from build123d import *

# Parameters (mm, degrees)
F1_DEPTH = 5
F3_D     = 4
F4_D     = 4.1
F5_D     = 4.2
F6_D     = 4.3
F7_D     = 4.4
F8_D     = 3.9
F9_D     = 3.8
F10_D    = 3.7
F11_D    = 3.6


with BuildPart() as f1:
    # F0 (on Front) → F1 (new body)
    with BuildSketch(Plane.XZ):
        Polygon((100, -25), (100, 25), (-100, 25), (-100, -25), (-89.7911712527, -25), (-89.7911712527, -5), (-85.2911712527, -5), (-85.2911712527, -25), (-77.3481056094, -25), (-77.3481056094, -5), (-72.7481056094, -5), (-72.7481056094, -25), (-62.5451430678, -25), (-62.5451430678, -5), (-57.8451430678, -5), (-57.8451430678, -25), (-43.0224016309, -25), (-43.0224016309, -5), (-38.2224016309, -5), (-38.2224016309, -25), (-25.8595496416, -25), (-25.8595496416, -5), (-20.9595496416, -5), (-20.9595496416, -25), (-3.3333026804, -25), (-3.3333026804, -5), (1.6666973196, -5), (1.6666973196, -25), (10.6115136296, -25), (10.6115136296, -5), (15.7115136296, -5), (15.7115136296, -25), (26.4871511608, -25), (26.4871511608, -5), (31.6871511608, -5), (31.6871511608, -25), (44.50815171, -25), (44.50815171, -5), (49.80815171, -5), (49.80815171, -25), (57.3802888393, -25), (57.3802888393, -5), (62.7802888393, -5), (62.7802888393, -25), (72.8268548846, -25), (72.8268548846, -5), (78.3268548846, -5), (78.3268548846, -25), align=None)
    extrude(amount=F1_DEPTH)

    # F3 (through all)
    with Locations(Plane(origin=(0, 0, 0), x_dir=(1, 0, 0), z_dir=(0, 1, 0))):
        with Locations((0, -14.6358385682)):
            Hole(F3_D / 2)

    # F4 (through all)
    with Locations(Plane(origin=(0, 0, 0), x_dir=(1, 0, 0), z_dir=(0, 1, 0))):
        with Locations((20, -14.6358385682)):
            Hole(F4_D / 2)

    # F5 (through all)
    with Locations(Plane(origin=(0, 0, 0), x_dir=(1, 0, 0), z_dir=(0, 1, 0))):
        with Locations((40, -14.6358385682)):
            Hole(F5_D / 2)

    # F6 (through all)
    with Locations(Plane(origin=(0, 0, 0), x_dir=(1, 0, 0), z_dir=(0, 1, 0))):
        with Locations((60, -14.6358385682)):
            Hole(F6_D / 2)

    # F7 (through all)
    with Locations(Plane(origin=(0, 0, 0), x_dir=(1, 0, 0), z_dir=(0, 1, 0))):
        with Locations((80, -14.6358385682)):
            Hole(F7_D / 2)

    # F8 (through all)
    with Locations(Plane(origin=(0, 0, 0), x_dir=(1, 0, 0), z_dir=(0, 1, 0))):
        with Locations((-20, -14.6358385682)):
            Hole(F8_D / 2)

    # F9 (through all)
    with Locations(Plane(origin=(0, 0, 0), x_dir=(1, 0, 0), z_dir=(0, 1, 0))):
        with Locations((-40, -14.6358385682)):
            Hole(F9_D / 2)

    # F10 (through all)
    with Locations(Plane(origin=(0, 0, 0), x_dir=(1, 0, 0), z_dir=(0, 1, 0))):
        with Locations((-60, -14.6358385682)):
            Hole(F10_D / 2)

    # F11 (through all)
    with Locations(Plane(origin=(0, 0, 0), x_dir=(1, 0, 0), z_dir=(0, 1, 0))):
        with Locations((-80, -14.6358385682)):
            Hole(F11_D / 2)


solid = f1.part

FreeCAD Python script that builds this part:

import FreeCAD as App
import Part
import Sketcher
Q = App.Units.Quantity

doc = App.newDocument("Part")
params = doc.addObject("Spreadsheet::Sheet", "Params")
for row, (alias, value) in enumerate([
    ("sketch1_width", "200 mm"),
    ("sketch1_width2", "5 mm"),
    ("sketch1_height", "50 mm"),
    ("sketch1_height2", "20 mm"),
    ("sketch1_width3", "4.5 mm"),
    ("pad1_length", "5 mm"),
    ("sketch2_diameter", "4 mm"),
    ("hole_diameter", "4 mm"),
    ("sketch3_diameter", "4.1 mm"),
    ("hole2_diameter", "4.1 mm"),
    ("sketch4_diameter", "4.2 mm"),
    ("hole3_diameter", "4.2 mm"),
    ("sketch5_diameter", "4.3 mm"),
    ("hole4_diameter", "4.3 mm"),
    ("sketch6_diameter", "4.4 mm"),
    ("hole5_diameter", "4.4 mm"),
    ("sketch7_diameter", "3.9 mm"),
    ("hole6_diameter", "3.9 mm"),
    ("sketch8_diameter", "3.8 mm"),
    ("hole7_diameter", "3.8 mm"),
    ("sketch9_diameter", "3.7 mm"),
    ("hole8_diameter", "3.7 mm"),
    ("sketch10_diameter", "3.6 mm"),
    ("hole9_diameter", "3.6 mm"),
], start=1):
    params.set(f"A{row}", alias)
    params.set(f"B{row}", "=" + value)
    params.setAlias(f"B{row}", alias)

body = doc.addObject("PartDesign::Body", "Body")

# Sketch on XZ plane
sketch1 = doc.addObject("Sketcher::SketchObject", "Sketch")
body.addObject(sketch1)
sketch1.AttachmentSupport = (doc.XZ_Plane, [""])
sketch1.MapMode = "FlatFace"
sketch1.addGeometry(Part.LineSegment(App.Vector(100, -25, 0), App.Vector(100, 25, 0)), False)
sketch1.addGeometry(Part.LineSegment(App.Vector(100, 25, 0), App.Vector(-100, 25, 0)), False)
sketch1.addGeometry(Part.LineSegment(App.Vector(-100, 25, 0), App.Vector(-100, -25, 0)), False)
sketch1.addGeometry(Part.LineSegment(App.Vector(-100, -25, 0), App.Vector(-89.8, -25, 0)), False)
sketch1.addGeometry(Part.LineSegment(App.Vector(-89.8, -25, 0), App.Vector(-89.8, -5, 0)), False)
sketch1.addGeometry(Part.LineSegment(App.Vector(-89.8, -5, 0), App.Vector(-85.3, -5, 0)), False)
sketch1.addGeometry(Part.LineSegment(App.Vector(-85.3, -5, 0), App.Vector(-85.3, -25, 0)), False)
sketch1.addGeometry(Part.LineSegment(App.Vector(-85.3, -25, 0), App.Vector(-77.3, -25, 0)), False)
sketch1.addGeometry(Part.LineSegment(App.Vector(-77.3, -25, 0), App.Vector(-77.3, -5, 0)), False)
sketch1.addGeometry(Part.LineSegment(App.Vector(-77.3, -5, 0), App.Vector(-72.7, -5, 0)), False)
sketch1.addGeometry(Part.LineSegment(App.Vector(-72.7, -5, 0), App.Vector(-72.7, -25, 0)), False)
sketch1.addGeometry(Part.LineSegment(App.Vector(-72.7, -25, 0), App.Vector(-62.5, -25, 0)), False)
sketch1.addGeometry(Part.LineSegment(App.Vector(-62.5, -25, 0), App.Vector(-62.5, -5, 0)), False)
sketch1.addGeometry(Part.LineSegment(App.Vector(-62.5, -5, 0), App.Vector(-57.8, -5, 0)), False)
sketch1.addGeometry(Part.LineSegment(App.Vector(-57.8, -5, 0), App.Vector(-57.8, -25, 0)), False)
sketch1.addGeometry(Part.LineSegment(App.Vector(-57.8, -25, 0), App.Vector(-43, -25, 0)), False)
sketch1.addGeometry(Part.LineSegment(App.Vector(-43, -25, 0), App.Vector(-43, -5, 0)), False)
sketch1.addGeometry(Part.LineSegment(App.Vector(-43, -5, 0), App.Vector(-38.2, -5, 0)), False)
sketch1.addGeometry(Part.LineSegment(App.Vector(-38.2, -5, 0), App.Vector(-38.2, -25, 0)), False)
sketch1.addGeometry(Part.LineSegment(App.Vector(-38.2, -25, 0), App.Vector(-25.9, -25, 0)), False)
sketch1.addGeometry(Part.LineSegment(App.Vector(-25.9, -25, 0), App.Vector(-25.9, -5, 0)), False)
sketch1.addGeometry(Part.LineSegment(App.Vector(-25.9, -5, 0), App.Vector(-21, -5, 0)), False)
sketch1.addGeometry(Part.LineSegment(App.Vector(-21, -5, 0), App.Vector(-21, -25, 0)), False)
sketch1.addGeometry(Part.LineSegment(App.Vector(-21, -25, 0), App.Vector(-3.3, -25, 0)), False)
sketch1.addGeometry(Part.LineSegment(App.Vector(-3.3, -25, 0), App.Vector(-3.3, -5, 0)), False)
sketch1.addGeometry(Part.LineSegment(App.Vector(-3.3, -5, 0), App.Vector(1.7, -5, 0)), False)
sketch1.addGeometry(Part.LineSegment(App.Vector(1.7, -5, 0), App.Vector(1.7, -25, 0)), False)
sketch1.addGeometry(Part.LineSegment(App.Vector(1.7, -25, 0), App.Vector(10.6, -25, 0)), False)
sketch1.addGeometry(Part.LineSegment(App.Vector(10.6, -25, 0), App.Vector(10.6, -5, 0)), False)
sketch1.addGeometry(Part.LineSegment(App.Vector(10.6, -5, 0), App.Vector(15.7, -5, 0)), False)
sketch1.addGeometry(Part.LineSegment(App.Vector(15.7, -5, 0), App.Vector(15.7, -25, 0)), False)
sketch1.addGeometry(Part.LineSegment(App.Vector(15.7, -25, 0), App.Vector(26.5, -25, 0)), False)
sketch1.addGeometry(Part.LineSegment(App.Vector(26.5, -25, 0), App.Vector(26.5, -5, 0)), False)
sketch1.addGeometry(Part.LineSegment(App.Vector(26.5, -5, 0), App.Vector(31.7, -5, 0)), False)
sketch1.addGeometry(Part.LineSegment(App.Vector(31.7, -5, 0), App.Vector(31.7, -25, 0)), False)
sketch1.addGeometry(Part.LineSegment(App.Vector(31.7, -25, 0), App.Vector(44.5, -25, 0)), False)
sketch1.addGeometry(Part.LineSegment(App.Vector(44.5, -25, 0), App.Vector(44.5, -5, 0)), False)
sketch1.addGeometry(Part.LineSegment(App.Vector(44.5, -5, 0), App.Vector(49.8, -5, 0)), False)
sketch1.addGeometry(Part.LineSegment(App.Vector(49.8, -5, 0), App.Vector(49.8, -25, 0)), False)
sketch1.addGeometry(Part.LineSegment(App.Vector(49.8, -25, 0), App.Vector(57.4, -25, 0)), False)
sketch1.addGeometry(Part.LineSegment(App.Vector(57.4, -25, 0), App.Vector(57.4, -5, 0)), False)
sketch1.addGeometry(Part.LineSegment(App.Vector(57.4, -5, 0), App.Vector(62.8, -5, 0)), False)
sketch1.addGeometry(Part.LineSegment(App.Vector(62.8, -5, 0), App.Vector(62.8, -25, 0)), False)
sketch1.addGeometry(Part.LineSegment(App.Vector(62.8, -25, 0), App.Vector(72.8, -25, 0)), False)
sketch1.addGeometry(Part.LineSegment(App.Vector(72.8, -25, 0), App.Vector(72.8, -5, 0)), False)
sketch1.addGeometry(Part.LineSegment(App.Vector(72.8, -5, 0), App.Vector(78.3, -5, 0)), False)
sketch1.addGeometry(Part.LineSegment(App.Vector(78.3, -5, 0), App.Vector(78.3, -25, 0)), False)
sketch1.addGeometry(Part.LineSegment(App.Vector(78.3, -25, 0), App.Vector(100, -25, 0)), False)
sketch1.addConstraint(Sketcher.Constraint("Coincident", 0, 2, 1, 1))
sketch1.addConstraint(Sketcher.Constraint("Coincident", 1, 2, 2, 1))
sketch1.addConstraint(Sketcher.Constraint("Coincident", 2, 2, 3, 1))
sketch1.addConstraint(Sketcher.Constraint("Coincident", 3, 2, 4, 1))
sketch1.addConstraint(Sketcher.Constraint("Coincident", 4, 2, 5, 1))
sketch1.addConstraint(Sketcher.Constraint("Coincident", 5, 2, 6, 1))
sketch1.addConstraint(Sketcher.Constraint("Coincident", 6, 2, 7, 1))
sketch1.addConstraint(Sketcher.Constraint("Coincident", 7, 2, 8, 1))
sketch1.addConstraint(Sketcher.Constraint("Coincident", 8, 2, 9, 1))
sketch1.addConstraint(Sketcher.Constraint("Coincident", 9, 2, 10, 1))
sketch1.addConstraint(Sketcher.Constraint("Coincident", 10, 2, 11, 1))
sketch1.addConstraint(Sketcher.Constraint("Coincident", 11, 2, 12, 1))
sketch1.addConstraint(Sketcher.Constraint("Coincident", 12, 2, 13, 1))
sketch1.addConstraint(Sketcher.Constraint("Coincident", 13, 2, 14, 1))
sketch1.addConstraint(Sketcher.Constraint("Coincident", 14, 2, 15, 1))
sketch1.addConstraint(Sketcher.Constraint("Coincident", 15, 2, 16, 1))
sketch1.addConstraint(Sketcher.Constraint("Coincident", 16, 2, 17, 1))
sketch1.addConstraint(Sketcher.Constraint("Coincident", 17, 2, 18, 1))
sketch1.addConstraint(Sketcher.Constraint("Coincident", 18, 2, 19, 1))
sketch1.addConstraint(Sketcher.Constraint("Coincident", 19, 2, 20, 1))
sketch1.addConstraint(Sketcher.Constraint("Coincident", 20, 2, 21, 1))
sketch1.addConstraint(Sketcher.Constraint("Coincident", 21, 2, 22, 1))
sketch1.addConstraint(Sketcher.Constraint("Coincident", 22, 2, 23, 1))
sketch1.addConstraint(Sketcher.Constraint("Coincident", 23, 2, 24, 1))
sketch1.addConstraint(Sketcher.Constraint("Coincident", 24, 2, 25, 1))
sketch1.addConstraint(Sketcher.Constraint("Coincident", 25, 2, 26, 1))
sketch1.addConstraint(Sketcher.Constraint("Coincident", 26, 2, 27, 1))
sketch1.addConstraint(Sketcher.Constraint("Coincident", 27, 2, 28, 1))
sketch1.addConstraint(Sketcher.Constraint("Coincident", 28, 2, 29, 1))
sketch1.addConstraint(Sketcher.Constraint("Coincident", 29, 2, 30, 1))
sketch1.addConstraint(Sketcher.Constraint("Coincident", 30, 2, 31, 1))
sketch1.addConstraint(Sketcher.Constraint("Coincident", 31, 2, 32, 1))
sketch1.addConstraint(Sketcher.Constraint("Coincident", 32, 2, 33, 1))
sketch1.addConstraint(Sketcher.Constraint("Coincident", 33, 2, 34, 1))
sketch1.addConstraint(Sketcher.Constraint("Coincident", 34, 2, 35, 1))
sketch1.addConstraint(Sketcher.Constraint("Coincident", 35, 2, 36, 1))
sketch1.addConstraint(Sketcher.Constraint("Coincident", 36, 2, 37, 1))
sketch1.addConstraint(Sketcher.Constraint("Coincident", 37, 2, 38, 1))
sketch1.addConstraint(Sketcher.Constraint("Coincident", 38, 2, 39, 1))
sketch1.addConstraint(Sketcher.Constraint("Coincident", 39, 2, 40, 1))
sketch1.addConstraint(Sketcher.Constraint("Coincident", 40, 2, 41, 1))
sketch1.addConstraint(Sketcher.Constraint("Coincident", 41, 2, 42, 1))
sketch1.addConstraint(Sketcher.Constraint("Coincident", 42, 2, 43, 1))
sketch1.addConstraint(Sketcher.Constraint("Coincident", 43, 2, 44, 1))
sketch1.addConstraint(Sketcher.Constraint("Coincident", 44, 2, 45, 1))
sketch1.addConstraint(Sketcher.Constraint("Coincident", 45, 2, 46, 1))
sketch1.addConstraint(Sketcher.Constraint("Coincident", 46, 2, 47, 1))
sketch1.addConstraint(Sketcher.Constraint("Coincident", 47, 2, 0, 1))
sketch1.addConstraint(Sketcher.Constraint("Vertical", 0))
sketch1.addConstraint(Sketcher.Constraint("Horizontal", 1))
sketch1.addConstraint(Sketcher.Constraint("Vertical", 2))
sketch1.addConstraint(Sketcher.Constraint("Horizontal", 3))
sketch1.addConstraint(Sketcher.Constraint("Vertical", 4))
sketch1.addConstraint(Sketcher.Constraint("Horizontal", 5))
sketch1.addConstraint(Sketcher.Constraint("Vertical", 6))
sketch1.addConstraint(Sketcher.Constraint("Horizontal", 7))
sketch1.addConstraint(Sketcher.Constraint("Vertical", 8))
sketch1.addConstraint(Sketcher.Constraint("Horizontal", 9))
sketch1.addConstraint(Sketcher.Constraint("Vertical", 10))
sketch1.addConstraint(Sketcher.Constraint("Horizontal", 11))
sketch1.addConstraint(Sketcher.Constraint("Vertical", 12))
sketch1.addConstraint(Sketcher.Constraint("Horizontal", 13))
sketch1.addConstraint(Sketcher.Constraint("Vertical", 14))
sketch1.addConstraint(Sketcher.Constraint("Horizontal", 15))
sketch1.addConstraint(Sketcher.Constraint("Vertical", 16))
sketch1.addConstraint(Sketcher.Constraint("Horizontal", 17))
sketch1.addConstraint(Sketcher.Constraint("Vertical", 18))
sketch1.addConstraint(Sketcher.Constraint("Horizontal", 19))
sketch1.addConstraint(Sketcher.Constraint("Vertical", 20))
sketch1.addConstraint(Sketcher.Constraint("Horizontal", 21))
sketch1.addConstraint(Sketcher.Constraint("Vertical", 22))
sketch1.addConstraint(Sketcher.Constraint("Horizontal", 23))
sketch1.addConstraint(Sketcher.Constraint("Vertical", 24))
sketch1.addConstraint(Sketcher.Constraint("Horizontal", 25))
sketch1.addConstraint(Sketcher.Constraint("Vertical", 26))
sketch1.addConstraint(Sketcher.Constraint("Horizontal", 27))
sketch1.addConstraint(Sketcher.Constraint("Vertical", 28))
sketch1.addConstraint(Sketcher.Constraint("Horizontal", 29))
sketch1.addConstraint(Sketcher.Constraint("Vertical", 30))
sketch1.addConstraint(Sketcher.Constraint("Horizontal", 31))
sketch1.addConstraint(Sketcher.Constraint("Vertical", 32))
sketch1.addConstraint(Sketcher.Constraint("Horizontal", 33))
sketch1.addConstraint(Sketcher.Constraint("Vertical", 34))
sketch1.addConstraint(Sketcher.Constraint("Horizontal", 35))
sketch1.addConstraint(Sketcher.Constraint("Vertical", 36))
sketch1.addConstraint(Sketcher.Constraint("Horizontal", 37))
sketch1.addConstraint(Sketcher.Constraint("Vertical", 38))
sketch1.addConstraint(Sketcher.Constraint("Horizontal", 39))
sketch1.addConstraint(Sketcher.Constraint("Vertical", 40))
sketch1.addConstraint(Sketcher.Constraint("Horizontal", 41))
sketch1.addConstraint(Sketcher.Constraint("Vertical", 42))
sketch1.addConstraint(Sketcher.Constraint("Horizontal", 43))
sketch1.addConstraint(Sketcher.Constraint("Vertical", 44))
sketch1.addConstraint(Sketcher.Constraint("Horizontal", 45))
sketch1.addConstraint(Sketcher.Constraint("Vertical", 46))
sketch1.addConstraint(Sketcher.Constraint("Horizontal", 47))
sketch1.addConstraint(Sketcher.Constraint("Symmetric", 0, 2, 2, 2, -1, 1))
sketch1.addConstraint(Sketcher.Constraint("Horizontal", 3, 2, 6, 2))
sketch1.addConstraint(Sketcher.Constraint("Horizontal", 5, 2, 8, 2))
sketch1.addConstraint(Sketcher.Constraint("Horizontal", 7, 2, 10, 2))
sketch1.addConstraint(Sketcher.Constraint("Horizontal", 9, 2, 12, 2))
sketch1.addConstraint(Sketcher.Constraint("Horizontal", 11, 2, 14, 2))
sketch1.addConstraint(Sketcher.Constraint("Horizontal", 13, 2, 16, 2))
sketch1.addConstraint(Sketcher.Constraint("Horizontal", 15, 2, 18, 2))
sketch1.addConstraint(Sketcher.Constraint("Horizontal", 17, 2, 20, 2))
sketch1.addConstraint(Sketcher.Constraint("Horizontal", 19, 2, 22, 2))
sketch1.addConstraint(Sketcher.Constraint("Horizontal", 21, 2, 24, 2))
sketch1.addConstraint(Sketcher.Constraint("Horizontal", 23, 2, 26, 2))
sketch1.addConstraint(Sketcher.Constraint("Horizontal", 25, 2, 28, 2))
sketch1.addConstraint(Sketcher.Constraint("Horizontal", 27, 2, 30, 2))
sketch1.addConstraint(Sketcher.Constraint("Horizontal", 29, 2, 32, 2))
sketch1.addConstraint(Sketcher.Constraint("Horizontal", 31, 2, 34, 2))
sketch1.addConstraint(Sketcher.Constraint("Horizontal", 33, 2, 36, 2))
sketch1.addConstraint(Sketcher.Constraint("Horizontal", 35, 2, 38, 2))
sketch1.addConstraint(Sketcher.Constraint("Horizontal", 37, 2, 40, 2))
sketch1.addConstraint(Sketcher.Constraint("Horizontal", 39, 2, 42, 2))
sketch1.addConstraint(Sketcher.Constraint("Horizontal", 41, 2, 44, 2))
sketch1.addConstraint(Sketcher.Constraint("Horizontal", 43, 2, 46, 2))
sketch1.addConstraint(Sketcher.Constraint("DistanceX", 1, 2, 1, 1, Q("200 mm")))
sketch1.addConstraint(Sketcher.Constraint("DistanceX", 25, 1, 25, 2, Q("5 mm")))
sketch1.addConstraint(Sketcher.Constraint("DistanceY", 0, 1, 0, 2, Q("50 mm")))
sketch1.addConstraint(Sketcher.Constraint("DistanceY", 4, 1, 4, 2, Q("20 mm")))
sketch1.addConstraint(Sketcher.Constraint("DistanceX", 5, 1, 5, 2, Q("4.5 mm")))
sketch1.addConstraint(Sketcher.Constraint("DistanceX", 9, 1, 9, 2, Q("4.6 mm")))
sketch1.addConstraint(Sketcher.Constraint("DistanceX", 13, 1, 13, 2, Q("4.7 mm")))
sketch1.addConstraint(Sketcher.Constraint("DistanceX", 17, 1, 17, 2, Q("4.8 mm")))
sketch1.addConstraint(Sketcher.Constraint("DistanceX", 21, 1, 21, 2, Q("4.9 mm")))
sketch1.addConstraint(Sketcher.Constraint("DistanceX", 29, 1, 29, 2, Q("5.1 mm")))
sketch1.addConstraint(Sketcher.Constraint("DistanceX", 33, 1, 33, 2, Q("5.2 mm")))
sketch1.addConstraint(Sketcher.Constraint("DistanceX", 37, 1, 37, 2, Q("5.3 mm")))
sketch1.addConstraint(Sketcher.Constraint("DistanceX", 41, 1, 41, 2, Q("5.4 mm")))
sketch1.addConstraint(Sketcher.Constraint("DistanceX", 45, 1, 45, 2, Q("5.5 mm")))
sketch1.addConstraint(Sketcher.Constraint("DistanceX", 35, 1, 35, 2, Q("12.821001 mm")))
sketch1.addConstraint(Sketcher.Constraint("DistanceX", 3, 1, 3, 2, Q("10.208829 mm")))
sketch1.addConstraint(Sketcher.Constraint("DistanceX", 15, 1, 15, 2, Q("14.822741 mm")))
sketch1.addConstraint(Sketcher.Constraint("DistanceX", 19, 1, 19, 2, Q("12.362852 mm")))
sketch1.addConstraint(Sketcher.Constraint("DistanceX", 15, 2, -1, 1, Q("43.022402 mm")))
sketch1.addConstraint(Sketcher.Constraint("DistanceX", 18, 2, 23, 2, Q("34.889099 mm")))
sketch1.addConstraint(Sketcher.Constraint("DistanceX", 7, 1, 7, 2, Q("7.943066 mm")))
sketch1.addConstraint(Sketcher.Constraint("DistanceX", 27, 1, 27, 2, Q("8.944816 mm")))
sketch1.addConstraint(Sketcher.Constraint("DistanceX", 31, 1, 31, 2, Q("10.775638 mm")))
sketch1.addConstraint(Sketcher.Constraint("DistanceX", 39, 1, 39, 2, Q("7.572137 mm")))
sketch1.addConstraint(Sketcher.Constraint("DistanceX", 43, 1, 43, 2, Q("10.046566 mm")))
sketch1.setExpression("Constraints[118]", "Params.sketch1_width")
sketch1.setExpression("Constraints[119]", "Params.sketch1_width2")
sketch1.setExpression("Constraints[120]", "Params.sketch1_height")
sketch1.setExpression("Constraints[121]", "Params.sketch1_height2")
sketch1.setExpression("Constraints[122]", "Params.sketch1_width3")
pad1 = doc.addObject("PartDesign::Pad", "Pad")
body.addObject(pad1)
pad1.Profile = sketch1
pad1.setExpression("Length", "Params.pad1_length")

# Sketch on XZ plane
sketch2 = doc.addObject("Sketcher::SketchObject", "Sketch001")
body.addObject(sketch2)
sketch2.AttachmentSupport = (doc.XZ_Plane, [""])
sketch2.MapMode = "FlatFace"
sketch2.addGeometry(Part.Circle(App.Vector(0, 14.6, 0), App.Vector(0, 0, 1), 2), False)
sketch2.addConstraint(Sketcher.Constraint("PointOnObject", 0, 3, -2))
sketch2.addConstraint(Sketcher.Constraint("Diameter", 0, Q("4 mm")))
sketch2.addConstraint(Sketcher.Constraint("DistanceY", -1, 1, 0, 3, Q("14.635839 mm")))
sketch2.setExpression("Constraints[1]", "Params.sketch2_diameter")
doc.recompute()
hole = doc.addObject("PartDesign::Hole", "Hole")
body.addObject(hole)
hole.Profile = sketch2
hole.ThreadType = "None"
hole.setExpression("Diameter", "Params.hole_diameter")
hole.DepthType = "ThroughAll"
hole.Reversed = True

# Sketch on XZ plane
sketch3 = doc.addObject("Sketcher::SketchObject", "Sketch002")
body.addObject(sketch3)
sketch3.AttachmentSupport = (doc.XZ_Plane, [""])
sketch3.MapMode = "FlatFace"
sketch3.addGeometry(Part.Circle(App.Vector(20, 14.6, 0), App.Vector(0, 0, 1), 2), False)
sketch3.addConstraint(Sketcher.Constraint("Diameter", 0, Q("4.1 mm")))
sketch3.addConstraint(Sketcher.Constraint("DistanceX", -1, 1, 0, 3, Q("20 mm")))
sketch3.addConstraint(Sketcher.Constraint("DistanceY", -1, 1, 0, 3, Q("14.635839 mm")))
sketch3.setExpression("Constraints[0]", "Params.sketch3_diameter")
doc.recompute()
hole2 = doc.addObject("PartDesign::Hole", "Hole001")
body.addObject(hole2)
hole2.Profile = sketch3
hole2.ThreadType = "None"
hole2.setExpression("Diameter", "Params.hole2_diameter")
hole2.DepthType = "ThroughAll"
hole2.Reversed = True

# Sketch on XZ plane
sketch4 = doc.addObject("Sketcher::SketchObject", "Sketch003")
body.addObject(sketch4)
sketch4.AttachmentSupport = (doc.XZ_Plane, [""])
sketch4.MapMode = "FlatFace"
sketch4.addGeometry(Part.Circle(App.Vector(40, 14.6, 0), App.Vector(0, 0, 1), 2.1), False)
sketch4.addConstraint(Sketcher.Constraint("Diameter", 0, Q("4.2 mm")))
sketch4.addConstraint(Sketcher.Constraint("DistanceX", -1, 1, 0, 3, Q("40 mm")))
sketch4.addConstraint(Sketcher.Constraint("DistanceY", -1, 1, 0, 3, Q("14.635839 mm")))
sketch4.setExpression("Constraints[0]", "Params.sketch4_diameter")
doc.recompute()
hole3 = doc.addObject("PartDesign::Hole", "Hole002")
body.addObject(hole3)
hole3.Profile = sketch4
hole3.ThreadType = "None"
hole3.setExpression("Diameter", "Params.hole3_diameter")
hole3.DepthType = "ThroughAll"
hole3.Reversed = True

# Sketch on XZ plane
sketch5 = doc.addObject("Sketcher::SketchObject", "Sketch004")
body.addObject(sketch5)
sketch5.AttachmentSupport = (doc.XZ_Plane, [""])
sketch5.MapMode = "FlatFace"
sketch5.addGeometry(Part.Circle(App.Vector(60, 14.6, 0), App.Vector(0, 0, 1), 2.1), False)
sketch5.addConstraint(Sketcher.Constraint("Diameter", 0, Q("4.3 mm")))
sketch5.addConstraint(Sketcher.Constraint("DistanceX", -1, 1, 0, 3, Q("60 mm")))
sketch5.addConstraint(Sketcher.Constraint("DistanceY", -1, 1, 0, 3, Q("14.635839 mm")))
sketch5.setExpression("Constraints[0]", "Params.sketch5_diameter")
doc.recompute()
hole4 = doc.addObject("PartDesign::Hole", "Hole003")
body.addObject(hole4)
hole4.Profile = sketch5
hole4.ThreadType = "None"
hole4.setExpression("Diameter", "Params.hole4_diameter")
hole4.DepthType = "ThroughAll"
hole4.Reversed = True

# Sketch on XZ plane
sketch6 = doc.addObject("Sketcher::SketchObject", "Sketch005")
body.addObject(sketch6)
sketch6.AttachmentSupport = (doc.XZ_Plane, [""])
sketch6.MapMode = "FlatFace"
sketch6.addGeometry(Part.Circle(App.Vector(80, 14.6, 0), App.Vector(0, 0, 1), 2.2), False)
sketch6.addConstraint(Sketcher.Constraint("Diameter", 0, Q("4.4 mm")))
sketch6.addConstraint(Sketcher.Constraint("DistanceX", -1, 1, 0, 3, Q("80 mm")))
sketch6.addConstraint(Sketcher.Constraint("DistanceY", -1, 1, 0, 3, Q("14.635839 mm")))
sketch6.setExpression("Constraints[0]", "Params.sketch6_diameter")
doc.recompute()
hole5 = doc.addObject("PartDesign::Hole", "Hole004")
body.addObject(hole5)
hole5.Profile = sketch6
hole5.ThreadType = "None"
hole5.setExpression("Diameter", "Params.hole5_diameter")
hole5.DepthType = "ThroughAll"
hole5.Reversed = True

# Sketch on XZ plane
sketch7 = doc.addObject("Sketcher::SketchObject", "Sketch006")
body.addObject(sketch7)
sketch7.AttachmentSupport = (doc.XZ_Plane, [""])
sketch7.MapMode = "FlatFace"
sketch7.addGeometry(Part.Circle(App.Vector(-20, 14.6, 0), App.Vector(0, 0, 1), 1.9), False)
sketch7.addConstraint(Sketcher.Constraint("Diameter", 0, Q("3.9 mm")))
sketch7.addConstraint(Sketcher.Constraint("DistanceX", 0, 3, -1, 1, Q("20 mm")))
sketch7.addConstraint(Sketcher.Constraint("DistanceY", -1, 1, 0, 3, Q("14.635839 mm")))
sketch7.setExpression("Constraints[0]", "Params.sketch7_diameter")
doc.recompute()
hole6 = doc.addObject("PartDesign::Hole", "Hole005")
body.addObject(hole6)
hole6.Profile = sketch7
hole6.ThreadType = "None"
hole6.setExpression("Diameter", "Params.hole6_diameter")
hole6.DepthType = "ThroughAll"
hole6.Reversed = True

# Sketch on XZ plane
sketch8 = doc.addObject("Sketcher::SketchObject", "Sketch007")
body.addObject(sketch8)
sketch8.AttachmentSupport = (doc.XZ_Plane, [""])
sketch8.MapMode = "FlatFace"
sketch8.addGeometry(Part.Circle(App.Vector(-40, 14.6, 0), App.Vector(0, 0, 1), 1.9), False)
sketch8.addConstraint(Sketcher.Constraint("Diameter", 0, Q("3.8 mm")))
sketch8.addConstraint(Sketcher.Constraint("DistanceX", 0, 3, -1, 1, Q("40 mm")))
sketch8.addConstraint(Sketcher.Constraint("DistanceY", -1, 1, 0, 3, Q("14.635839 mm")))
sketch8.setExpression("Constraints[0]", "Params.sketch8_diameter")
doc.recompute()
hole7 = doc.addObject("PartDesign::Hole", "Hole006")
body.addObject(hole7)
hole7.Profile = sketch8
hole7.ThreadType = "None"
hole7.setExpression("Diameter", "Params.hole7_diameter")
hole7.DepthType = "ThroughAll"
hole7.Reversed = True

# Sketch on XZ plane
sketch9 = doc.addObject("Sketcher::SketchObject", "Sketch008")
body.addObject(sketch9)
sketch9.AttachmentSupport = (doc.XZ_Plane, [""])
sketch9.MapMode = "FlatFace"
sketch9.addGeometry(Part.Circle(App.Vector(-60, 14.6, 0), App.Vector(0, 0, 1), 1.9), False)
sketch9.addConstraint(Sketcher.Constraint("Diameter", 0, Q("3.7 mm")))
sketch9.addConstraint(Sketcher.Constraint("DistanceX", 0, 3, -1, 1, Q("60 mm")))
sketch9.addConstraint(Sketcher.Constraint("DistanceY", -1, 1, 0, 3, Q("14.635839 mm")))
sketch9.setExpression("Constraints[0]", "Params.sketch9_diameter")
doc.recompute()
hole8 = doc.addObject("PartDesign::Hole", "Hole007")
body.addObject(hole8)
hole8.Profile = sketch9
hole8.ThreadType = "None"
hole8.setExpression("Diameter", "Params.hole8_diameter")
hole8.DepthType = "ThroughAll"
hole8.Reversed = True

# Sketch on XZ plane
sketch10 = doc.addObject("Sketcher::SketchObject", "Sketch009")
body.addObject(sketch10)
sketch10.AttachmentSupport = (doc.XZ_Plane, [""])
sketch10.MapMode = "FlatFace"
sketch10.addGeometry(Part.Circle(App.Vector(-80, 14.6, 0), App.Vector(0, 0, 1), 1.8), False)
sketch10.addConstraint(Sketcher.Constraint("Diameter", 0, Q("3.6 mm")))
sketch10.addConstraint(Sketcher.Constraint("DistanceX", 0, 3, -1, 1, Q("80 mm")))
sketch10.addConstraint(Sketcher.Constraint("DistanceY", -1, 1, 0, 3, Q("14.635839 mm")))
sketch10.setExpression("Constraints[0]", "Params.sketch10_diameter")
doc.recompute()
hole9 = doc.addObject("PartDesign::Hole", "Hole008")
body.addObject(hole9)
hole9.Profile = sketch10
hole9.ThreadType = "None"
hole9.setExpression("Diameter", "Params.hole9_diameter")
hole9.DepthType = "ThroughAll"
hole9.Reversed = True

doc.recompute()
